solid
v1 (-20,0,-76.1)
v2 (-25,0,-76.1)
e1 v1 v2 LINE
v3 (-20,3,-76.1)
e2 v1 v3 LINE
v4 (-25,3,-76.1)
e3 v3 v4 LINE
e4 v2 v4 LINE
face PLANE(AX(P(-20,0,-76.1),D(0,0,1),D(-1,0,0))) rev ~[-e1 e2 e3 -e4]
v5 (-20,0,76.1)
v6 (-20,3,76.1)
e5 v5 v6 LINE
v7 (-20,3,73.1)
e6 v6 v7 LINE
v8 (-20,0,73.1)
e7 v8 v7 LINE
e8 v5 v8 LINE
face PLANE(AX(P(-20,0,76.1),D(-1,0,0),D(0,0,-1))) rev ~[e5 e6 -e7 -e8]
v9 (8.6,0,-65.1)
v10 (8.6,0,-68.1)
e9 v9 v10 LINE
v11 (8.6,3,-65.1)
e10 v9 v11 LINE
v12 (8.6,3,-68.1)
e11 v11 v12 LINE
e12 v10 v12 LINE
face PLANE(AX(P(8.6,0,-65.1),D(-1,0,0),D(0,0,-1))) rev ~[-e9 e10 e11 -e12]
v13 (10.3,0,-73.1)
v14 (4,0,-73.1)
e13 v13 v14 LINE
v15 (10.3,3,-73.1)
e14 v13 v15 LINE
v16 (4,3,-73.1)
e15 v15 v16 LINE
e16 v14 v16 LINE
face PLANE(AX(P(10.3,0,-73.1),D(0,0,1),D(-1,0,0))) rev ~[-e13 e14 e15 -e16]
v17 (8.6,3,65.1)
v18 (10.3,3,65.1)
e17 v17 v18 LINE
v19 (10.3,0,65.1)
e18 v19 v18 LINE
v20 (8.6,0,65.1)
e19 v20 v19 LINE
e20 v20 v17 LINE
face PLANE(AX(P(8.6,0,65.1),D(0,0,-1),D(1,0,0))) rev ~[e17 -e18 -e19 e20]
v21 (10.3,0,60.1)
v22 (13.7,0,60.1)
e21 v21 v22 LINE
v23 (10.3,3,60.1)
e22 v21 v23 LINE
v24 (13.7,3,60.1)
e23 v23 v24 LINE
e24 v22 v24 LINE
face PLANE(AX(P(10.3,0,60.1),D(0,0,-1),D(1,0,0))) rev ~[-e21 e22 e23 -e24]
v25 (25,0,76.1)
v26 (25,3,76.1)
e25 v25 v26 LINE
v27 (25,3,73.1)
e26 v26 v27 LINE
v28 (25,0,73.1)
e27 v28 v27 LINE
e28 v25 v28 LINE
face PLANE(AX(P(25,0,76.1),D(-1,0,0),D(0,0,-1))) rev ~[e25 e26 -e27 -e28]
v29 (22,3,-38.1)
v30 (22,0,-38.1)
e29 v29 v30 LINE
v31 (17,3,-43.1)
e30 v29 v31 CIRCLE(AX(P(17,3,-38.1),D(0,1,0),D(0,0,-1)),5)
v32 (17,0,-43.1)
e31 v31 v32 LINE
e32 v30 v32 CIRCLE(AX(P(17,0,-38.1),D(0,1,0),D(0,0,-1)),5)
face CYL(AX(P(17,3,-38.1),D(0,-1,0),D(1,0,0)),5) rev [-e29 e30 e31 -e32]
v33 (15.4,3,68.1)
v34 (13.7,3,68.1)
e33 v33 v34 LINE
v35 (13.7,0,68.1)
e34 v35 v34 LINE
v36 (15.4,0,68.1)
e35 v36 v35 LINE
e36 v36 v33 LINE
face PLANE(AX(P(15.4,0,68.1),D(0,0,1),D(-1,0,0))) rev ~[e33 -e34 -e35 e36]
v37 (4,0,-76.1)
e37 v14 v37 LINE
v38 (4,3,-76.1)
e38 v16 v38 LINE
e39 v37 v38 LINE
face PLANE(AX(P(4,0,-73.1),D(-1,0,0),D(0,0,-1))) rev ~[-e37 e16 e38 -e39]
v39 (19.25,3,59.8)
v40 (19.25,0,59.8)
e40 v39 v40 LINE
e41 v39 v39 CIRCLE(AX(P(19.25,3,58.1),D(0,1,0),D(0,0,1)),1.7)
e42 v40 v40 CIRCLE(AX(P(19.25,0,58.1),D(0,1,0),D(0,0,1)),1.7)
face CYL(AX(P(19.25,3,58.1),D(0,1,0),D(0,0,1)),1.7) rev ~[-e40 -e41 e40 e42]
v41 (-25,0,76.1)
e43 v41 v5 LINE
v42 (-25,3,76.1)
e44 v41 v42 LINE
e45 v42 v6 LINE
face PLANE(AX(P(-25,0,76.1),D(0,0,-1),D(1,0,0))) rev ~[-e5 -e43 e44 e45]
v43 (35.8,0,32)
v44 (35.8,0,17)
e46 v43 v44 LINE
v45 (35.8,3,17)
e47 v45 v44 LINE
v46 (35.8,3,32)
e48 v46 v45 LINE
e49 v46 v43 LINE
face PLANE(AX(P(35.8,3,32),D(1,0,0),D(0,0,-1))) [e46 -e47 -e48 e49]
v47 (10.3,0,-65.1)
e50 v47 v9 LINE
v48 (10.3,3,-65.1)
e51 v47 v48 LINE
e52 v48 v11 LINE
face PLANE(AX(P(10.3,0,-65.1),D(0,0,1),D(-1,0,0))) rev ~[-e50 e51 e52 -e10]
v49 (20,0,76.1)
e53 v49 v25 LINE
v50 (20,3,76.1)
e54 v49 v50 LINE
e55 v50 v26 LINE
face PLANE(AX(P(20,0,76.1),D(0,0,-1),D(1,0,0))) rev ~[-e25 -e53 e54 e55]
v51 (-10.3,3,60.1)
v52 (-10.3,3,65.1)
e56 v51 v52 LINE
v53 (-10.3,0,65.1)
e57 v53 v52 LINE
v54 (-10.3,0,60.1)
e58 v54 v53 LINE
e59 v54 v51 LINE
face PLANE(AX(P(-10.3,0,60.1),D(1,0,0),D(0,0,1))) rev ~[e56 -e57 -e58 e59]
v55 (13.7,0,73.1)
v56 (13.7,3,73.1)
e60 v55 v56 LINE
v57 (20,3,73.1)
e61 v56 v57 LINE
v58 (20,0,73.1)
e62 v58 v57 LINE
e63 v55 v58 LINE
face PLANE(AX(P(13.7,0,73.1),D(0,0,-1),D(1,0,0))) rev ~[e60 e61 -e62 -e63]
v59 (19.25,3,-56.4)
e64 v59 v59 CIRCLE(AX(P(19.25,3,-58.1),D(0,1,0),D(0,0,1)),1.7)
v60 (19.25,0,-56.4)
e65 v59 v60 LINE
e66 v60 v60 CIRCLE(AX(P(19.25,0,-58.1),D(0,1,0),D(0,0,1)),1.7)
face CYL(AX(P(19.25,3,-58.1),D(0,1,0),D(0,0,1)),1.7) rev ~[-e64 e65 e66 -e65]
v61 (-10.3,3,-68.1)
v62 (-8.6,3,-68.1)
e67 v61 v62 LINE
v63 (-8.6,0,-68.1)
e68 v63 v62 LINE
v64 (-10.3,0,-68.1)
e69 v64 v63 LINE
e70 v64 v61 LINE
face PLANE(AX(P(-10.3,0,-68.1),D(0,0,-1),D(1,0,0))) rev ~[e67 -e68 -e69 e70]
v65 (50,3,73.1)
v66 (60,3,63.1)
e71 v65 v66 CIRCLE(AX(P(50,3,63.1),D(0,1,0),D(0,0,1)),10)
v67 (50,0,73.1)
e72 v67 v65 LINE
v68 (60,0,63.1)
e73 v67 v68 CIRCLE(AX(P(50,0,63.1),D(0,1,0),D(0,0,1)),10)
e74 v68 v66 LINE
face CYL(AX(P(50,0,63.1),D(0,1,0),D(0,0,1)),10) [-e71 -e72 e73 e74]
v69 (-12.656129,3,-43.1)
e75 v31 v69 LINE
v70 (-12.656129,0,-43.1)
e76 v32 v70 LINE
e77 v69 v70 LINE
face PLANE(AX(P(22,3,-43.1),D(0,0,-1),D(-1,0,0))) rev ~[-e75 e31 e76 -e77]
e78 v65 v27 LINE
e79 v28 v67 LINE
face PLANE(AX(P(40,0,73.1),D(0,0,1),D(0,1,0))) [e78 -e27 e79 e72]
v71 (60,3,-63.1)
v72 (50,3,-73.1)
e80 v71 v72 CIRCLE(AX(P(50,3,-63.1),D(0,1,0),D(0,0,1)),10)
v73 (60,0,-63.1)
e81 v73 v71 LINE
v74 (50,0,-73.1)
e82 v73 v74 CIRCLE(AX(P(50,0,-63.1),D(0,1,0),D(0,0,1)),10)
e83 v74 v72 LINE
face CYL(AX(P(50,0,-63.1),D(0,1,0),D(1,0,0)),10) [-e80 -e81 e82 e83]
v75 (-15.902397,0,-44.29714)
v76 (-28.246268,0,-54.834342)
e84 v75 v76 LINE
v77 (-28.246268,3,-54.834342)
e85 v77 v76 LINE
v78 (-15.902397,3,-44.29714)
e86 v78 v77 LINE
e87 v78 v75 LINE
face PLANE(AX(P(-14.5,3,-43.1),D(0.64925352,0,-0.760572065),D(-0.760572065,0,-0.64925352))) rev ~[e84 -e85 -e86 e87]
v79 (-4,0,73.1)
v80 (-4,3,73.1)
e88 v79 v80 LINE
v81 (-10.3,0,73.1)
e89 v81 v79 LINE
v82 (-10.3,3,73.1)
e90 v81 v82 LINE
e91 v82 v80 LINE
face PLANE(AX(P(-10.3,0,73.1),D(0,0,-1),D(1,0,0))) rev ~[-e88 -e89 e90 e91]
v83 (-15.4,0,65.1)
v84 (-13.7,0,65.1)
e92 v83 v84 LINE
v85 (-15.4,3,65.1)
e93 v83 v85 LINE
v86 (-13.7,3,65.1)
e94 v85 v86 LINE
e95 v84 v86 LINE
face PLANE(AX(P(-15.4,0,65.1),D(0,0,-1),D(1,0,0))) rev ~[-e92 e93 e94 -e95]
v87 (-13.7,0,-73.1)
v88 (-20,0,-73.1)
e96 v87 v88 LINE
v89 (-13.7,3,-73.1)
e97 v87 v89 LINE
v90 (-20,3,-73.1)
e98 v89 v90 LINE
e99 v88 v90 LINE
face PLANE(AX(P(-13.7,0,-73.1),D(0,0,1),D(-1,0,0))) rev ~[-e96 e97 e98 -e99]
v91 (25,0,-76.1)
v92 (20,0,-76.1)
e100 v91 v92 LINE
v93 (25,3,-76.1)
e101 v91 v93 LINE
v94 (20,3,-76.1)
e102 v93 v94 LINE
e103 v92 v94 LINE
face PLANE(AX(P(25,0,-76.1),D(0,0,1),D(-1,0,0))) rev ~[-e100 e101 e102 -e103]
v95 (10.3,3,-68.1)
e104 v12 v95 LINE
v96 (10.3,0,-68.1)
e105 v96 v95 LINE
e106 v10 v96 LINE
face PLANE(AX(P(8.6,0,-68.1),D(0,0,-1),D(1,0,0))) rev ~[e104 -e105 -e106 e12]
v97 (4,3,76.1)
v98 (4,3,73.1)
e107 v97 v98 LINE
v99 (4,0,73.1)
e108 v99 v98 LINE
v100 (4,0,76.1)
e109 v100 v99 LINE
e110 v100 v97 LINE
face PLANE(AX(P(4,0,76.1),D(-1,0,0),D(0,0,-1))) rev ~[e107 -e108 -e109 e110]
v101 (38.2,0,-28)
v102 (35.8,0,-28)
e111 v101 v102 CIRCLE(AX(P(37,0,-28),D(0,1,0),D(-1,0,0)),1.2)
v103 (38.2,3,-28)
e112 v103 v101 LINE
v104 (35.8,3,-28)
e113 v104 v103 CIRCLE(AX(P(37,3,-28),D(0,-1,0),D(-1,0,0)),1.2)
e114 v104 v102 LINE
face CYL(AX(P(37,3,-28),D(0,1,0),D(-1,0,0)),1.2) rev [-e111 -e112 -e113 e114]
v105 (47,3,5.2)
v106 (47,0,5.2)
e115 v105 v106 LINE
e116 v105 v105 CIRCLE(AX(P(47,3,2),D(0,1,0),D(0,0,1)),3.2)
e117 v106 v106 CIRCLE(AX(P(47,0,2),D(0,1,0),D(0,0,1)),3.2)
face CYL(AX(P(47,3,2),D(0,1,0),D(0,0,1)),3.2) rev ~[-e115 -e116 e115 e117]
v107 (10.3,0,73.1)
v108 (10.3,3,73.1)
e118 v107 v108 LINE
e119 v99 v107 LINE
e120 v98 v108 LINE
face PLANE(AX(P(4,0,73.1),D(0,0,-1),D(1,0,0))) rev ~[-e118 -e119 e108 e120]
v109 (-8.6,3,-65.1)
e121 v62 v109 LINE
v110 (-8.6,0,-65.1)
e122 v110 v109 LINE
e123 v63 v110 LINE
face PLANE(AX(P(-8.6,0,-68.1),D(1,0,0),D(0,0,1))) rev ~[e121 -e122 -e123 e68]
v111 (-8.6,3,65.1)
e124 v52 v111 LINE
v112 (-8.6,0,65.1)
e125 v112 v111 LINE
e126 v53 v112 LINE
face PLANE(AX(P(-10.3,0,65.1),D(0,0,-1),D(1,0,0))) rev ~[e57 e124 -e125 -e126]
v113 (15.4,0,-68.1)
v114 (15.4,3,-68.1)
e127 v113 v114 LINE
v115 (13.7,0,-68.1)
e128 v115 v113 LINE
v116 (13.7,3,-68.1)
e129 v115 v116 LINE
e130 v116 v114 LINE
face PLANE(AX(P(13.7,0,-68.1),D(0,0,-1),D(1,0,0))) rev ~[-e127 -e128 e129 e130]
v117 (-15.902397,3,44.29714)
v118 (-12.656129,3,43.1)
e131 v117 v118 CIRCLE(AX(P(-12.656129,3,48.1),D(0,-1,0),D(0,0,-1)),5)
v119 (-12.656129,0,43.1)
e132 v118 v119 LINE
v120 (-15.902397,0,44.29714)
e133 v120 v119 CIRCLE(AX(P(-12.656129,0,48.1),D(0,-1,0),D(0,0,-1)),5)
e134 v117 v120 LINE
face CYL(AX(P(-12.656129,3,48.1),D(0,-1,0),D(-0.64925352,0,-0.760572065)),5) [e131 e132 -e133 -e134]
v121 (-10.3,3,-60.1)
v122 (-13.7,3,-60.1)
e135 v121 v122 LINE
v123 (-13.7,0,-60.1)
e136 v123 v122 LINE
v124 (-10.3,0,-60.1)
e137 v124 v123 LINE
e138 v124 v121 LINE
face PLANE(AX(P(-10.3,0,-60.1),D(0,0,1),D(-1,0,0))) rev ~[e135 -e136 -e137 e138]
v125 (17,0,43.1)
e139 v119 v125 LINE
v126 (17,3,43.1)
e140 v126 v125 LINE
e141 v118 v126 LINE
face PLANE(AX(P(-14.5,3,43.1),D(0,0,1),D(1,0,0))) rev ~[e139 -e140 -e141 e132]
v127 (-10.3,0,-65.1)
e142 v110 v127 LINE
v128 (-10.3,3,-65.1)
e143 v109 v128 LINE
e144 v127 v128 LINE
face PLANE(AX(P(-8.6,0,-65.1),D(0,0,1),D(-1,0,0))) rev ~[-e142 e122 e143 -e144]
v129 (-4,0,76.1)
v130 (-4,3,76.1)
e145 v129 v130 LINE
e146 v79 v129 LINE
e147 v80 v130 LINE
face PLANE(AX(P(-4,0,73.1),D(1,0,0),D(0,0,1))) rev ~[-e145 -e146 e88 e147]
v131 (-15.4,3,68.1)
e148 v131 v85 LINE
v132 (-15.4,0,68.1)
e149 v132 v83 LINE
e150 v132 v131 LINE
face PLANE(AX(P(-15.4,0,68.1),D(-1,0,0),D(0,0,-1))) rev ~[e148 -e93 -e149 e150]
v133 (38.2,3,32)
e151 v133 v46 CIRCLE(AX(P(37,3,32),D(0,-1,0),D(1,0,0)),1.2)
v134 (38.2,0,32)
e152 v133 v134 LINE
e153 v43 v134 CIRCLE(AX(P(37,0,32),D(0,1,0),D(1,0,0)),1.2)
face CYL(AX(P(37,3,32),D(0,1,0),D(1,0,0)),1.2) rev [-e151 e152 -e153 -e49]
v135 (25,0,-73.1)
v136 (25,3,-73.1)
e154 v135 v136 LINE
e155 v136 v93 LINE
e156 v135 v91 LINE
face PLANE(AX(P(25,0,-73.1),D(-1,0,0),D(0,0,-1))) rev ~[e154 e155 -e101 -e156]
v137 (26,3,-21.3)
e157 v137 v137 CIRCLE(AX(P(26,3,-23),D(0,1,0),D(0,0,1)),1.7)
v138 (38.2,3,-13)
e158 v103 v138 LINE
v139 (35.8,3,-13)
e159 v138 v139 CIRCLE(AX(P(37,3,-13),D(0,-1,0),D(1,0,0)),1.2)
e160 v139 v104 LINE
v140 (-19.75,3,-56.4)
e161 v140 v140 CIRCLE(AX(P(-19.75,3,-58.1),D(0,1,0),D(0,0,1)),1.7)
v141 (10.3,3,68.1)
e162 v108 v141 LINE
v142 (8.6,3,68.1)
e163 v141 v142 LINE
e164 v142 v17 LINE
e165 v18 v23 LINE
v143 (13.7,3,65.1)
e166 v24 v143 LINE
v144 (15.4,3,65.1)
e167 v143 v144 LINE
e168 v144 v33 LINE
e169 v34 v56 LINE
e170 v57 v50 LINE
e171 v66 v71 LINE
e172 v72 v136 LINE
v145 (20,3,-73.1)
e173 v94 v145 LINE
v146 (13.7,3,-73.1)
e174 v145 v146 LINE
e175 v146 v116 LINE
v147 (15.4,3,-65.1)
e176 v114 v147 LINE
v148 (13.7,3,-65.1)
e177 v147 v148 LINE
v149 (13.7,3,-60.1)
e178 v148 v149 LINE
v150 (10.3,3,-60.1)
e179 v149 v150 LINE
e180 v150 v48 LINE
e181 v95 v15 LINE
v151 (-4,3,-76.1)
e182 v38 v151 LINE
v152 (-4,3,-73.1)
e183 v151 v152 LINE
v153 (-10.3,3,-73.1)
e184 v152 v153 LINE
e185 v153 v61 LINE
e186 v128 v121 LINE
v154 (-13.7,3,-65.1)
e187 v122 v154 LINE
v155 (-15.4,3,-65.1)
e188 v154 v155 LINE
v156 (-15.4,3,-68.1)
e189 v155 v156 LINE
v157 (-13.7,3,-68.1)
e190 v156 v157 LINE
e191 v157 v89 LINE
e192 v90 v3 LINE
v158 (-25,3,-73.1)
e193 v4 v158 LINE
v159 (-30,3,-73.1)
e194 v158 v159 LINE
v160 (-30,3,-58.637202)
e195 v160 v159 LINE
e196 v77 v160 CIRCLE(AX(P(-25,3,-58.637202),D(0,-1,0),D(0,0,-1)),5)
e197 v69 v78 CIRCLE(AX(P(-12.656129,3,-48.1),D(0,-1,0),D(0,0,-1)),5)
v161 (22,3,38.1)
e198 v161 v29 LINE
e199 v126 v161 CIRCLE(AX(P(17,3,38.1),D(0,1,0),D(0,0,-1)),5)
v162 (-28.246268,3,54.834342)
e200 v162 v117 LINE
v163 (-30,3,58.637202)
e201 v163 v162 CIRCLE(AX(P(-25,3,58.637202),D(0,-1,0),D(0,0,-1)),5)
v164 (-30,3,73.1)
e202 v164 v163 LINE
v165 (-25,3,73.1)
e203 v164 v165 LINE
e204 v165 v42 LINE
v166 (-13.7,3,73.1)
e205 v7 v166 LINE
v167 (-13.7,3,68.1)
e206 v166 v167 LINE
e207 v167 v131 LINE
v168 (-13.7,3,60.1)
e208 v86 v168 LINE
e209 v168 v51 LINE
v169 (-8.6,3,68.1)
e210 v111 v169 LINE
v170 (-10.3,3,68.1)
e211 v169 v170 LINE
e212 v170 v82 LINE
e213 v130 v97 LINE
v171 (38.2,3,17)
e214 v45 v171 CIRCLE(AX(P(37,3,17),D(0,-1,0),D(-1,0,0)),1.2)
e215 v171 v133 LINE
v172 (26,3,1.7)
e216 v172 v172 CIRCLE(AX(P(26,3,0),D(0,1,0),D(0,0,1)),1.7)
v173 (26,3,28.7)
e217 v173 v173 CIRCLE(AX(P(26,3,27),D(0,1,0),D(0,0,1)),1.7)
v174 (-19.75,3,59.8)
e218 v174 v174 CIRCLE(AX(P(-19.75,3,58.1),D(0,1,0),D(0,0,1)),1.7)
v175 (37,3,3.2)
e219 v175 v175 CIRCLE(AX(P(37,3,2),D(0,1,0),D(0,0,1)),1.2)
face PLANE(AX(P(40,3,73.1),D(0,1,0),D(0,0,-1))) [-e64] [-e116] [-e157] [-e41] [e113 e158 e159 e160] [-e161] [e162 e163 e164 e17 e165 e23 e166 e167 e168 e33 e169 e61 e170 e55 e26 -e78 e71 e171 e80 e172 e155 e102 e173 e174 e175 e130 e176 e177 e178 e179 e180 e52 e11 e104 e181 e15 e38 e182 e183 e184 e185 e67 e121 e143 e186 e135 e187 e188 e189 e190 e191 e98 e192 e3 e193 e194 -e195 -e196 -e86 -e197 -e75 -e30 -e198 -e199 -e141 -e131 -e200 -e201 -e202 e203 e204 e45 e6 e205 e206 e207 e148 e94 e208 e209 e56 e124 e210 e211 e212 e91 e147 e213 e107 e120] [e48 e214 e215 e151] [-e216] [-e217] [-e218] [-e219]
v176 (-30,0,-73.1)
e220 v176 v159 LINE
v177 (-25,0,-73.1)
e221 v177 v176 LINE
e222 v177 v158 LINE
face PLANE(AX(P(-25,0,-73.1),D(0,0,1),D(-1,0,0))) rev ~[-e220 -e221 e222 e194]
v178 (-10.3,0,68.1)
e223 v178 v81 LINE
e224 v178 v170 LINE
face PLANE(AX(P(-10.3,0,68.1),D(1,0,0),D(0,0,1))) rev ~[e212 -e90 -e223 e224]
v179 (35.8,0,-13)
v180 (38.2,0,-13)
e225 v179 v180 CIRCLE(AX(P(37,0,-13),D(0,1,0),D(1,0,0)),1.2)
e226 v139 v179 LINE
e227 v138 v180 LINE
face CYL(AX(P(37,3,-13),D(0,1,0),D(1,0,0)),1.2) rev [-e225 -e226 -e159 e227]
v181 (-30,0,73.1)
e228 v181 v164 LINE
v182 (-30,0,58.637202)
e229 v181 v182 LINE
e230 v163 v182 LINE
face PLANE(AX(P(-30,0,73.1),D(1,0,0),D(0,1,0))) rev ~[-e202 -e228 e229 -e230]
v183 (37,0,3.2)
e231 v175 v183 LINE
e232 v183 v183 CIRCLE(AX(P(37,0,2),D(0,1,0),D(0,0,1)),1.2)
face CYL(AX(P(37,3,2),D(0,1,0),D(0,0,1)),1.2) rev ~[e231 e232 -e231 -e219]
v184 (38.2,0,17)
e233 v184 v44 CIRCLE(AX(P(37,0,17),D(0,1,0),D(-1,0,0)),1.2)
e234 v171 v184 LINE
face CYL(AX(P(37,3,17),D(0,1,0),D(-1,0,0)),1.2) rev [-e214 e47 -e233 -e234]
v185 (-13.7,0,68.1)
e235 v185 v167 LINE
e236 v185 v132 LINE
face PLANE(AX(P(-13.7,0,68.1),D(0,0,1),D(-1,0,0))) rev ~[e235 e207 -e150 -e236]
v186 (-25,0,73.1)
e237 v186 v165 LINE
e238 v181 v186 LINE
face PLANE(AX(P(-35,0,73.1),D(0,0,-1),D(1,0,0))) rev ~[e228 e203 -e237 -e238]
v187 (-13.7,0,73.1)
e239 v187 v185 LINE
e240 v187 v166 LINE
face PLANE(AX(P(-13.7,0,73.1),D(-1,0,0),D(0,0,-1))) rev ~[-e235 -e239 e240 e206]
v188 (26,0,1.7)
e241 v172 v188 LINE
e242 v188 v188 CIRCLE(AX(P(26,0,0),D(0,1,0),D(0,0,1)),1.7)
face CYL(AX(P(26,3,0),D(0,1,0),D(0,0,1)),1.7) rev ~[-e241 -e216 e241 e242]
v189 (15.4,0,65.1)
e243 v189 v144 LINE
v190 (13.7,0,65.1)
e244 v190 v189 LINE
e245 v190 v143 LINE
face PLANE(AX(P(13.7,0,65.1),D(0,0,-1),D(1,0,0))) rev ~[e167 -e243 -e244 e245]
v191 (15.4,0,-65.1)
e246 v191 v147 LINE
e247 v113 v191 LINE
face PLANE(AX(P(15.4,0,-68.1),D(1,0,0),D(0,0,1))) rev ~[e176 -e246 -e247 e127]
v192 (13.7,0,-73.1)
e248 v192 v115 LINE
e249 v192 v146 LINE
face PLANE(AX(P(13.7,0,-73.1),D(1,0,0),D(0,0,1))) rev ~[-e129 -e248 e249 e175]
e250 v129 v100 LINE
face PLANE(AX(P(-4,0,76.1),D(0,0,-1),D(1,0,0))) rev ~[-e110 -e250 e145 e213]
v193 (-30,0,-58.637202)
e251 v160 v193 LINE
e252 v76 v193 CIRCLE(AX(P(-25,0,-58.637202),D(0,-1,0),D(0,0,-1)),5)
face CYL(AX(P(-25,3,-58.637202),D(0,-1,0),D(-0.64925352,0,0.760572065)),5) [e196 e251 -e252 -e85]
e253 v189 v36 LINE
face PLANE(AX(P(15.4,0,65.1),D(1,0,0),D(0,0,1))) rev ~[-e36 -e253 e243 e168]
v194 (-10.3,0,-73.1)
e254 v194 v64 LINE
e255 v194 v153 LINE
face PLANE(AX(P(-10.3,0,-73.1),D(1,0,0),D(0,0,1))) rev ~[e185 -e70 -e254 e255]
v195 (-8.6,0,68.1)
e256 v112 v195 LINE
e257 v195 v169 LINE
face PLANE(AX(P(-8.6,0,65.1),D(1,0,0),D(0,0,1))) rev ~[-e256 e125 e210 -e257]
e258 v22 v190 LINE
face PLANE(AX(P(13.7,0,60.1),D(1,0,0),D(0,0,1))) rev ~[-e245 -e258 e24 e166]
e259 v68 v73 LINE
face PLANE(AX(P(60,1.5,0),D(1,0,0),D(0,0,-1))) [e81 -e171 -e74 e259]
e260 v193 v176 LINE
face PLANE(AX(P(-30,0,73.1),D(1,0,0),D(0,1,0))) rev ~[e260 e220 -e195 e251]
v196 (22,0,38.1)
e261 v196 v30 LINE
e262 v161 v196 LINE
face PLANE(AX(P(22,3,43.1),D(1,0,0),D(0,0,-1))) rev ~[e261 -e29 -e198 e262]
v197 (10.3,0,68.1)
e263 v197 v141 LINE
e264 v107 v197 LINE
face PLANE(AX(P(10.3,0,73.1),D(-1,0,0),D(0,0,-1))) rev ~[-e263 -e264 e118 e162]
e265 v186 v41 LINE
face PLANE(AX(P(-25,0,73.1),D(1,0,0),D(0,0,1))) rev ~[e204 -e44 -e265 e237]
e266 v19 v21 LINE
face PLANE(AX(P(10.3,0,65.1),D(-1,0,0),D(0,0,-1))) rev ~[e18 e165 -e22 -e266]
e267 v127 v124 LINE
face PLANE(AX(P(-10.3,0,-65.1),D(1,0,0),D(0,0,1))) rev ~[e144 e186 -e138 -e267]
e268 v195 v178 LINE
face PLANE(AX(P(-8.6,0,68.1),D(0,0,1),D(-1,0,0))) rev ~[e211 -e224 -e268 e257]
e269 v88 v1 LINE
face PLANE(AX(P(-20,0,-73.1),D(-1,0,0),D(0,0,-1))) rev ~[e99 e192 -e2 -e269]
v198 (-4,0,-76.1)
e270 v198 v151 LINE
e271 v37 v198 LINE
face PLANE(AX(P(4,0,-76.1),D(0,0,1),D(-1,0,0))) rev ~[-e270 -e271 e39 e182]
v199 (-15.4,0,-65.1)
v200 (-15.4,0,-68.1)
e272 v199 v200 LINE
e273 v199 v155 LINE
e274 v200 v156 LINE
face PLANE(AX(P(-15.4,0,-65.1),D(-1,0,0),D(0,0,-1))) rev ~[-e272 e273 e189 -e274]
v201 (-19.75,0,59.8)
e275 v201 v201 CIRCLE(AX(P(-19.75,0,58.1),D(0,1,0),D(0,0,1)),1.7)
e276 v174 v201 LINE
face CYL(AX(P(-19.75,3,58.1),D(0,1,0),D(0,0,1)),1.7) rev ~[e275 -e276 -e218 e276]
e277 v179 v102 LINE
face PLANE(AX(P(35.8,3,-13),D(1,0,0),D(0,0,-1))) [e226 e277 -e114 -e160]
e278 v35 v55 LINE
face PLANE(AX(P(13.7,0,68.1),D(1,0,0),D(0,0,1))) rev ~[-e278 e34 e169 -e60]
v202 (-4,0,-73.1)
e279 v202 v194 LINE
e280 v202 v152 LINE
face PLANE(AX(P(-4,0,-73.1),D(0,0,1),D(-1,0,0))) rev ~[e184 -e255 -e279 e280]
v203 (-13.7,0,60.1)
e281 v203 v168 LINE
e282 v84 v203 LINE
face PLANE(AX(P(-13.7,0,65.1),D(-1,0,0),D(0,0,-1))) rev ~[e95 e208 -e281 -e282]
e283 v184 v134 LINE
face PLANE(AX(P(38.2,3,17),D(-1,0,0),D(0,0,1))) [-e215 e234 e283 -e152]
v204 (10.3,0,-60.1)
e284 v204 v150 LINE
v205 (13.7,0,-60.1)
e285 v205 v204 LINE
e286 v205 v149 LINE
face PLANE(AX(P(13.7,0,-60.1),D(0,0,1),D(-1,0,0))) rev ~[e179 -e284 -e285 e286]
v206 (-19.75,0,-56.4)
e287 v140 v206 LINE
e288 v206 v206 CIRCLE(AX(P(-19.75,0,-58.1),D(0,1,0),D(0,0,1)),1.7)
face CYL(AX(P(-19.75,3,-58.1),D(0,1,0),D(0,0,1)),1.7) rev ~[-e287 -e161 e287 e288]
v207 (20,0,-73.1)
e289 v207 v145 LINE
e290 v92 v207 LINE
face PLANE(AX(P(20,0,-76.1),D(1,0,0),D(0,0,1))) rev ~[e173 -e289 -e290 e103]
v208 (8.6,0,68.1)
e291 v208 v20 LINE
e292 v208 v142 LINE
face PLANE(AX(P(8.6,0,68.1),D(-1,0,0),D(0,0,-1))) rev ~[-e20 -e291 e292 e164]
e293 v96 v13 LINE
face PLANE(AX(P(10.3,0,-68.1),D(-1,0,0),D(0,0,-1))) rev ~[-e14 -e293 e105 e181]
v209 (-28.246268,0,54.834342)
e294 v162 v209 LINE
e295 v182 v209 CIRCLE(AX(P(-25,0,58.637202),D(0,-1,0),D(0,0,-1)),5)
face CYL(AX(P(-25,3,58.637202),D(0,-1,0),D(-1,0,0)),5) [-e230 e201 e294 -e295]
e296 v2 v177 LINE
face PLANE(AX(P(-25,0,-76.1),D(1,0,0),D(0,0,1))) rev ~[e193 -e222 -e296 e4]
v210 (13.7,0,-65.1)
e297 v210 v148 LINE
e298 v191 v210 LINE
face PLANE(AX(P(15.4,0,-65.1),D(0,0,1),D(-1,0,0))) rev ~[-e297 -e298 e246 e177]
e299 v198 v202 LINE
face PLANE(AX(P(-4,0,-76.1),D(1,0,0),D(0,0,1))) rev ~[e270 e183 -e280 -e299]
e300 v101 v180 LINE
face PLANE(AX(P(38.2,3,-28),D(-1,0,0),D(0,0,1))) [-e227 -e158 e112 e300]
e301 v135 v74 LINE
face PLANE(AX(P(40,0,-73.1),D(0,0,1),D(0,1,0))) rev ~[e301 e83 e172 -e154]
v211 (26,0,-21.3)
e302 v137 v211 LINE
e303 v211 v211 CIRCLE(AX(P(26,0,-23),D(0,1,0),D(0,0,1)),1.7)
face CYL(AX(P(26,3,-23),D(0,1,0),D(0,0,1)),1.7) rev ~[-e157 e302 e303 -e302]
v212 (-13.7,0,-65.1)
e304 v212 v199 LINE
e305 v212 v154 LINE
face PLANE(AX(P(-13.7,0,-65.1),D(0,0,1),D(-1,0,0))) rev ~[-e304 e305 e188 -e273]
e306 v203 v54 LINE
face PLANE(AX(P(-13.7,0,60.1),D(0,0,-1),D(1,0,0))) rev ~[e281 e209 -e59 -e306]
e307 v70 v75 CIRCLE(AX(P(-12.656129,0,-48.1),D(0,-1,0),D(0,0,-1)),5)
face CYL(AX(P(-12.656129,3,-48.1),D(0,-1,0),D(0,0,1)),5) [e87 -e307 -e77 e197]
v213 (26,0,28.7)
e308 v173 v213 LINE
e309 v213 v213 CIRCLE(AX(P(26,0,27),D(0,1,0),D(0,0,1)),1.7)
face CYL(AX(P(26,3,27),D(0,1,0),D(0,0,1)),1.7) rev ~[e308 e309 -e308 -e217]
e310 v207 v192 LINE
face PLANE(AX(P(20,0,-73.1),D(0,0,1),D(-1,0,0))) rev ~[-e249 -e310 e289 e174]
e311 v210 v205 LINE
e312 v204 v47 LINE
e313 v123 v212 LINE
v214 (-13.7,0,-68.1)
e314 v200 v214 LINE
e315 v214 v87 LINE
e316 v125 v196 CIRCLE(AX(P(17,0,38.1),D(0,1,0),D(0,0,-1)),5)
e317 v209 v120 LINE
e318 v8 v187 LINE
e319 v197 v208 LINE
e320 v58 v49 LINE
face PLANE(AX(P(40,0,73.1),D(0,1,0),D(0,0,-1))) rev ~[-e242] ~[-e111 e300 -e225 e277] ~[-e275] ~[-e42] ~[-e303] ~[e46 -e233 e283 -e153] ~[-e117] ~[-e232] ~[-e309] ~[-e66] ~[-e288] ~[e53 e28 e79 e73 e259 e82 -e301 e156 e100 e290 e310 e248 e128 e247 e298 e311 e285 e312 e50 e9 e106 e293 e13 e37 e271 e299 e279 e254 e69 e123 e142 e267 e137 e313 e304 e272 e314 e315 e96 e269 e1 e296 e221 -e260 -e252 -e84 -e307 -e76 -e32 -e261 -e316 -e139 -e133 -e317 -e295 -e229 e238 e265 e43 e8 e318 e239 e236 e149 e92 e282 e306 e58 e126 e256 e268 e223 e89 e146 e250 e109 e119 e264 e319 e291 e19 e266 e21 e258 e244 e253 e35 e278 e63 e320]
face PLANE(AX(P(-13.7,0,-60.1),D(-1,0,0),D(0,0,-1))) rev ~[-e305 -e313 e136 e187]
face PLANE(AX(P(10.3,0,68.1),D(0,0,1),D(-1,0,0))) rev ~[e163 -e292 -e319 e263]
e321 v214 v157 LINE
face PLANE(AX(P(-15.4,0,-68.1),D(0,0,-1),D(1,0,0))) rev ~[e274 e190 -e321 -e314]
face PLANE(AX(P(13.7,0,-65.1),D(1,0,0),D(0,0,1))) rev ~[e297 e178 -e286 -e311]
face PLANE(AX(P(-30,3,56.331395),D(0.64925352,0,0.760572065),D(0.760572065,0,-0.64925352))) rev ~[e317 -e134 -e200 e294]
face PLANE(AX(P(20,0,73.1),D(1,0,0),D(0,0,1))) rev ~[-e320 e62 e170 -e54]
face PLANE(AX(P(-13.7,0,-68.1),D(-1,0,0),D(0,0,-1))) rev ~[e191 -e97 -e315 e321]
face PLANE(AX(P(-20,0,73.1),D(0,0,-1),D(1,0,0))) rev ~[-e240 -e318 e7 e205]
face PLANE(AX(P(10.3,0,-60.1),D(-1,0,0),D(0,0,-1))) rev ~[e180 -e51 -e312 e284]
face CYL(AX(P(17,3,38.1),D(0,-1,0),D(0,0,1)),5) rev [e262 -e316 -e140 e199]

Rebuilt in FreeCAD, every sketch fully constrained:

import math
import FreeCAD as App
import Part
import Sketcher
Q = App.Units.Quantity


def edges_at(feature, points):
    """Names of the edges that pass closest to the given points."""
    edges = feature.Shape.Edges
    near = lambda p: min(range(len(edges)), key=lambda i: edges[i].distToShape(Part.Vertex(*p))[0])
    return sorted({f"Edge{near(p) + 1}" for p in points})


def add_polygon(sketch, points):
    """Adds a closed chain of lines whose ends are joined by coincident constraints."""
    first, n = sketch.GeometryCount, len(points)
    for a, b in zip(points, points[1:] + points[:1]):
        sketch.addGeometry(Part.LineSegment(App.Vector(*a, 0), App.Vector(*b, 0)), False)
    for i in range(n):
        sketch.addConstraint(Sketcher.Constraint("Coincident", first + i, 2, first + (i + 1) % n, 1))

doc = App.newDocument("Part")
body = doc.addObject("PartDesign::Body", "Body")

# Sketch on XZ plane
sketch1 = body.newObject("Sketcher::SketchObject", "Sketch")
sketch1.AttachmentSupport = (doc.getObject("XZ_Plane"), [""])
sketch1.MapMode = "FlatFace"
add_polygon(sketch1, [(-25, 73.1), (-25, 76.1), (-20, 76.1), (-20, 73.1), (-13.7, 73.1), (-13.7, 68.1), (-15.4, 68.1), (-15.4, 65.1), (-13.7, 65.1), (-13.7, 60.1), (-10.3, 60.1), (-10.3, 65.1), (-8.6, 65.1), (-8.6, 68.1), (-10.3, 68.1), (-10.3, 73.1), (-4, 73.1), (-4, 76.1), (4, 76.1), (4, 73.1), (10.3, 73.1), (10.3, 68.1), (8.6, 68.1), (8.6, 65.1), (10.3, 65.1), (10.3, 60.1), (13.7, 60.1), (13.7, 65.1), (15.4, 65.1), (15.4, 68.1), (13.7, 68.1), (13.7, 73.1), (20, 73.1), (20, 76.1), (25, 76.1), (25, 73.1), (35, 73.1), (35, -73.1), (25, -73.1), (25, -76.1), (20, -76.1), (20, -73.1), (13.7, -73.1), (13.7, -68.1), (15.4, -68.1), (15.4, -65.1), (13.7, -65.1), (13.7, -60.1), (10.3, -60.1), (10.3, -65.1), (8.6, -65.1), (8.6, -68.1), (10.3, -68.1), (10.3, -73.1), (4, -73.1), (4, -76.1), (-4, -76.1), (-4, -73.1), (-10.3, -73.1), (-10.3, -68.1), (-8.6, -68.1), (-8.6, -65.1), (-10.3, -65.1), (-10.3, -60.1), (-13.7, -60.1), (-13.7, -65.1), (-15.4, -65.1), (-15.4, -68.1), (-13.7, -68.1), (-13.7, -73.1), (-20, -73.1), (-20, -76.1), (-25, -76.1), (-25, -73.1), (-35, -73.1), (-35, 73.1)])  # lines 0-75
sketch1.addConstraint(Sketcher.Constraint("Vertical", 0))
sketch1.addConstraint(Sketcher.Constraint("Horizontal", 1))
sketch1.addConstraint(Sketcher.Constraint("Vertical", 2))
sketch1.addConstraint(Sketcher.Constraint("Horizontal", 3))
sketch1.addConstraint(Sketcher.Constraint("Vertical", 4))
sketch1.addConstraint(Sketcher.Constraint("Horizontal", 5))
sketch1.addConstraint(Sketcher.Constraint("Vertical", 6))
sketch1.addConstraint(Sketcher.Constraint("Horizontal", 7))
sketch1.addConstraint(Sketcher.Constraint("Vertical", 8))
sketch1.addConstraint(Sketcher.Constraint("Horizontal", 9))
sketch1.addConstraint(Sketcher.Constraint("Vertical", 10))
sketch1.addConstraint(Sketcher.Constraint("Horizontal", 11))
sketch1.addConstraint(Sketcher.Constraint("Vertical", 12))
sketch1.addConstraint(Sketcher.Constraint("Horizontal", 13))
sketch1.addConstraint(Sketcher.Constraint("Vertical", 14))
sketch1.addConstraint(Sketcher.Constraint("Horizontal", 15))
sketch1.addConstraint(Sketcher.Constraint("Vertical", 16))
sketch1.addConstraint(Sketcher.Constraint("Horizontal", 17))
sketch1.addConstraint(Sketcher.Constraint("Vertical", 18))
sketch1.addConstraint(Sketcher.Constraint("Horizontal", 19))
sketch1.addConstraint(Sketcher.Constraint("Vertical", 20))
sketch1.addConstraint(Sketcher.Constraint("Horizontal", 21))
sketch1.addConstraint(Sketcher.Constraint("Vertical", 22))
sketch1.addConstraint(Sketcher.Constraint("Horizontal", 23))
sketch1.addConstraint(Sketcher.Constraint("Vertical", 24))
sketch1.addConstraint(Sketcher.Constraint("Horizontal", 25))
sketch1.addConstraint(Sketcher.Constraint("Vertical", 26))
sketch1.addConstraint(Sketcher.Constraint("Horizontal", 27))
sketch1.addConstraint(Sketcher.Constraint("Vertical", 28))
sketch1.addConstraint(Sketcher.Constraint("Horizontal", 29))
sketch1.addConstraint(Sketcher.Constraint("Vertical", 30))
sketch1.addConstraint(Sketcher.Constraint("Horizontal", 31))
sketch1.addConstraint(Sketcher.Constraint("Vertical", 32))
sketch1.addConstraint(Sketcher.Constraint("Horizontal", 33))
sketch1.addConstraint(Sketcher.Constraint("Vertical", 34))
sketch1.addConstraint(Sketcher.Constraint("Horizontal", 35))
sketch1.addConstraint(Sketcher.Constraint("Vertical", 36))
sketch1.addConstraint(Sketcher.Constraint("Horizontal", 37))
sketch1.addConstraint(Sketcher.Constraint("Vertical", 38))
sketch1.addConstraint(Sketcher.Constraint("Horizontal", 39))
sketch1.addConstraint(Sketcher.Constraint("Vertical", 40))
sketch1.addConstraint(Sketcher.Constraint("Horizontal", 41))
sketch1.addConstraint(Sketcher.Constraint("Vertical", 42))
sketch1.addConstraint(Sketcher.Constraint("Horizontal", 43))
sketch1.addConstraint(Sketcher.Constraint("Vertical", 44))
sketch1.addConstraint(Sketcher.Constraint("Horizontal", 45))
sketch1.addConstraint(Sketcher.Constraint("Vertical", 46))
sketch1.addConstraint(Sketcher.Constraint("Horizontal", 47))
sketch1.addConstraint(Sketcher.Constraint("Vertical", 48))
sketch1.addConstraint(Sketcher.Constraint("Horizontal", 49))
sketch1.addConstraint(Sketcher.Constraint("Vertical", 50))
sketch1.addConstraint(Sketcher.Constraint("Horizontal", 51))
sketch1.addConstraint(Sketcher.Constraint("Vertical", 52))
sketch1.addConstraint(Sketcher.Constraint("Horizontal", 53))
sketch1.addConstraint(Sketcher.Constraint("Vertical", 54))
sketch1.addConstraint(Sketcher.Constraint("Horizontal", 55))
sketch1.addConstraint(Sketcher.Constraint("Vertical", 56))
sketch1.addConstraint(Sketcher.Constraint("Horizontal", 57))
sketch1.addConstraint(Sketcher.Constraint("Vertical", 58))
sketch1.addConstraint(Sketcher.Constraint("Horizontal", 59))
sketch1.addConstraint(Sketcher.Constraint("Vertical", 60))
sketch1.addConstraint(Sketcher.Constraint("Horizontal", 61))
sketch1.addConstraint(Sketcher.Constraint("Vertical", 62))
sketch1.addConstraint(Sketcher.Constraint("Horizontal", 63))
sketch1.addConstraint(Sketcher.Constraint("Vertical", 64))
sketch1.addConstraint(Sketcher.Constraint("Horizontal", 65))
sketch1.addConstraint(Sketcher.Constraint("Vertical", 66))
sketch1.addConstraint(Sketcher.Constraint("Horizontal", 67))
sketch1.addConstraint(Sketcher.Constraint("Vertical", 68))
sketch1.addConstraint(Sketcher.Constraint("Horizontal", 69))
sketch1.addConstraint(Sketcher.Constraint("Vertical", 70))
sketch1.addConstraint(Sketcher.Constraint("Horizontal", 71))
sketch1.addConstraint(Sketcher.Constraint("Vertical", 72))
sketch1.addConstraint(Sketcher.Constraint("Horizontal", 73))
sketch1.addConstraint(Sketcher.Constraint("Vertical", 74))
sketch1.addConstraint(Sketcher.Constraint("Horizontal", 75))
sketch1.addConstraint(Sketcher.Constraint("Symmetric", 0, 2, 38, 2, -1, 1))
sketch1.addConstraint(Sketcher.Constraint("Symmetric", 2, 2, 40, 2, -1, 1))
sketch1.addConstraint(Sketcher.Constraint("Symmetric", 4, 2, 42, 2, -1, 1))
sketch1.addConstraint(Sketcher.Constraint("Symmetric", 6, 2, 44, 2, -1, 1))
sketch1.addConstraint(Sketcher.Constraint("Symmetric", 8, 2, 46, 2, -1, 1))
sketch1.addConstraint(Sketcher.Constraint("Symmetric", 10, 2, 48, 2, -1, 1))
sketch1.addConstraint(Sketcher.Constraint("Symmetric", 12, 2, 50, 2, -1, 1))
sketch1.addConstraint(Sketcher.Constraint("Symmetric", 14, 2, 52, 2, -1, 1))
sketch1.addConstraint(Sketcher.Constraint("Symmetric", 16, 2, 54, 2, -1, 1))
sketch1.addConstraint(Sketcher.Constraint("Symmetric", 18, 2, 56, 2, -1, 1))
sketch1.addConstraint(Sketcher.Constraint("Symmetric", 20, 2, 58, 2, -1, 1))
sketch1.addConstraint(Sketcher.Constraint("Symmetric", 22, 2, 60, 2, -1, 1))
sketch1.addConstraint(Sketcher.Constraint("Symmetric", 24, 2, 62, 2, -1, 1))
sketch1.addConstraint(Sketcher.Constraint("Symmetric", 26, 2, 64, 2, -1, 1))
sketch1.addConstraint(Sketcher.Constraint("Symmetric", 28, 2, 66, 2, -1, 1))
sketch1.addConstraint(Sketcher.Constraint("Symmetric", 30, 2, 68, 2, -1, 1))
sketch1.addConstraint(Sketcher.Constraint("Symmetric", 32, 2, 70, 2, -1, 1))
sketch1.addConstraint(Sketcher.Constraint("Symmetric", 34, 2, 72, 2, -1, 1))
sketch1.addConstraint(Sketcher.Constraint("Symmetric", 36, 2, 74, 2, -1, 1))
sketch1.addConstraint(Sketcher.Constraint("Symmetric", 15, 2, 18, 2, -2))
sketch1.addConstraint(Sketcher.Constraint("Symmetric", 13, 2, 20, 2, -2))
sketch1.addConstraint(Sketcher.Constraint("Symmetric", 11, 2, 22, 2, -2))
sketch1.addConstraint(Sketcher.Constraint("Symmetric", 9, 2, 24, 2, -2))
sketch1.addConstraint(Sketcher.Constraint("Symmetric", 7, 2, 26, 2, -2))
sketch1.addConstraint(Sketcher.Constraint("Symmetric", 5, 2, 28, 2, -2))
sketch1.addConstraint(Sketcher.Constraint("Symmetric", 3, 2, 30, 2, -2))
sketch1.addConstraint(Sketcher.Constraint("Symmetric", 1, 2, 32, 2, -2))
sketch1.addConstraint(Sketcher.Constraint("Symmetric", 37, 2, 72, 2, -2))
sketch1.addConstraint(Sketcher.Constraint("Horizontal", 7, 2, 10, 2))
sketch1.addConstraint(Sketcher.Constraint("Horizontal", 5, 2, 12, 2))
sketch1.addConstraint(Sketcher.Constraint("Horizontal", 3, 2, 14, 2))
sketch1.addConstraint(Sketcher.Constraint("Horizontal", 1, 2, 16, 2))
sketch1.addConstraint(Sketcher.Constraint("Horizontal", 31, 2, 34, 2))
sketch1.addConstraint(Sketcher.Constraint("Vertical", 4, 2, 7, 2))
sketch1.addConstraint(Sketcher.Constraint("Vertical", 10, 2, 13, 2))
sketch1.addConstraint(Sketcher.Constraint("Equal", 7, 11))
sketch1.addConstraint(Sketcher.Constraint("Equal", 3, 15))
sketch1.addConstraint(Sketcher.Constraint("Equal", 71, 4))
sketch1.addConstraint(Sketcher.Constraint("Equal", 2, 6))
sketch1.addConstraint(Sketcher.Constraint("Equal", 4, 8))
sketch1.addConstraint(Sketcher.Constraint("DistanceX", 1, 1, 1, 2, Q("5 mm")))
sketch1.addConstraint(Sketcher.Constraint("DistanceX", 17, 1, 17, 2, Q("8 mm")))
sketch1.addConstraint(Sketcher.Constraint("DistanceX", 35, 1, 35, 2, Q("10 mm")))
sketch1.addConstraint(Sketcher.Constraint("DistanceY", 0, 1, 0, 2, Q("3 mm")))
sketch1.addConstraint(Sketcher.Constraint("DistanceX", 3, 1, 3, 2, Q("6.3 mm")))
sketch1.addConstraint(Sketcher.Constraint("DistanceX", 5, 2, 5, 1, Q("1.7 mm")))
sketch1.addConstraint(Sketcher.Constraint("DistanceX", 9, 1, 9, 2, Q("3.4 mm")))
sketch1.addConstraint(Sketcher.Constraint("DistanceY", 36, 2, 36, 1, Q("146.2 mm")))
pad1 = body.newObject("PartDesign::Pad", "Pad")
pad1.Profile = sketch1
pad1.Length = 3
pad1.Reversed = True

# Sketch on XY plane
sketch2 = body.newObject("Sketcher::SketchObject", "Sketch001")
sketch2.AttachmentSupport = (doc.getObject("XY_Plane"), [""])
sketch2.MapMode = "FlatFace"
sketch2.AttachmentOffset = App.Placement(App.Vector(0, 0, 73.1), App.Rotation())
add_polygon(sketch2, [(-35, 3), (-35, 0), (-30, 0), (-30, 3)])  # lines 0-3
sketch2.addConstraint(Sketcher.Constraint("Vertical", 0))
sketch2.addConstraint(Sketcher.Constraint("Horizontal", 1))
sketch2.addConstraint(Sketcher.Constraint("Vertical", 2))
sketch2.addConstraint(Sketcher.Constraint("Horizontal", 3))
sketch2.addConstraint(Sketcher.Constraint("PointOnObject", 0, 2, -1))
sketch2.addConstraint(Sketcher.Constraint("DistanceX", 1, 1, 1, 2, Q("5 mm")))
sketch2.addConstraint(Sketcher.Constraint("DistanceY", 0, 2, 0, 1, Q("3 mm")))
sketch2.addConstraint(Sketcher.Constraint("DistanceX", 0, 2, -1, 1, Q("35 mm")))
pocket1 = body.newObject("PartDesign::Pocket", "Pocket")
pocket1.Profile = sketch2
pocket1.Length = 176

# Sketch on YZ plane
sketch3 = body.newObject("Sketcher::SketchObject", "Sketch002")
sketch3.AttachmentSupport = (doc.getObject("YZ_Plane"), [""])
sketch3.MapMode = "FlatFace"
sketch3.AttachmentOffset = App.Placement(App.Vector(0, 0, 35), App.Rotation())
add_polygon(sketch3, [(3, 73.1), (0, 73.1), (0, -73.1), (3, -73.1)])  # lines 0-3
sketch3.addConstraint(Sketcher.Constraint("Horizontal", 0))
sketch3.addConstraint(Sketcher.Constraint("Vertical", 1))
sketch3.addConstraint(Sketcher.Constraint("Horizontal", 2))
sketch3.addConstraint(Sketcher.Constraint("Vertical", 3))
sketch3.addConstraint(Sketcher.Constraint("Symmetric", 0, 2, 1, 2, -1, 1))
sketch3.addConstraint(Sketcher.Constraint("DistanceX", 0, 2, 0, 1, Q("3 mm")))
sketch3.addConstraint(Sketcher.Constraint("DistanceY", 1, 2, 1, 1, Q("146.2 mm")))
pad2 = body.newObject("PartDesign::Pad", "Pad001")
pad2.Profile = sketch3
pad2.Length = 5

# Sketch on XZ plane
sketch4 = body.newObject("Sketcher::SketchObject", "Sketch003")
sketch4.AttachmentSupport = (doc.getObject("XZ_Plane"), [""])
sketch4.MapMode = "FlatFace"
sketch4.AttachmentOffset = App.Placement(App.Vector(0, 0, -3), App.Rotation())
sketch4.addGeometry(Part.Circle(App.Vector(-19.8, 58.1, 0), App.Vector(0, 0, 1), 1.7), False)
sketch4.addGeometry(Part.Circle(App.Vector(19.2, 58.1, 0), App.Vector(0, 0, 1), 1.7), False)
sketch4.addGeometry(Part.Circle(App.Vector(19.2, -58.1, 0), App.Vector(0, 0, 1), 1.7), False)
sketch4.addGeometry(Part.Circle(App.Vector(-19.8, -58.1, 0), App.Vector(0, 0, 1), 1.7), False)
sketch4.addConstraint(Sketcher.Constraint("Equal", 0, 1))
sketch4.addConstraint(Sketcher.Constraint("Equal", 1, 2))
sketch4.addConstraint(Sketcher.Constraint("Equal", 2, 3))
sketch4.addConstraint(Sketcher.Constraint("Symmetric", 1, 3, 2, 3, -1))
sketch4.addConstraint(Sketcher.Constraint("Symmetric", 0, 3, 3, 3, -1))
sketch4.addConstraint(Sketcher.Constraint("Horizontal", 0, 3, 1, 3))
sketch4.addConstraint(Sketcher.Constraint("Diameter", 0, Q("3.4 mm")))
sketch4.addConstraint(Sketcher.Constraint("DistanceX", 0, 3, 1, 3, Q("39 mm")))
sketch4.addConstraint(Sketcher.Constraint("DistanceY", -1, 1, 0, 3, Q("58.1 mm")))
sketch4.addConstraint(Sketcher.Constraint("DistanceX", 0, 3, -1, 1, Q("19.75 mm")))
pocket2 = body.newObject("PartDesign::Pocket", "Pocket001")
pocket2.Profile = sketch4
pocket2.Length = 5
pocket2.Reversed = True

# Sketch on XZ plane
sketch5 = body.newObject("Sketcher::SketchObject", "Sketch004")
sketch5.AttachmentSupport = (doc.getObject("XZ_Plane"), [""])
sketch5.MapMode = "FlatFace"
sketch5.AttachmentOffset = App.Placement(App.Vector(0, 0, -3), App.Rotation())
add_polygon(sketch5, [(-30, 56), (-14, 43), (22, 43), (22, -43), (-14, -43), (-30, -56)])  # lines 0-5
sketch5.addConstraint(Sketcher.Constraint("Horizontal", 1))
sketch5.addConstraint(Sketcher.Constraint("Vertical", 2))
sketch5.addConstraint(Sketcher.Constraint("Horizontal", 3))
sketch5.addConstraint(Sketcher.Constraint("Vertical", 5))
sketch5.addConstraint(Sketcher.Constraint("Symmetric", 0, 2, 3, 2, -1))
sketch5.addConstraint(Sketcher.Constraint("Equal", 0, 4))
sketch5.addConstraint(Sketcher.Constraint("DistanceX", 1, 1, 1, 2, Q("36.5 mm")))
sketch5.addConstraint(Sketcher.Constraint("DistanceY", 2, 2, 2, 1, Q("86.2 mm")))
sketch5.addConstraint(Sketcher.Constraint("DistanceX", -1, 1, 1, 2, Q("22 mm")))
sketch5.addConstraint(Sketcher.Constraint("DistanceX", 4, 2, -1, 1, Q("30 mm")))
sketch5.addConstraint(Sketcher.Constraint("DistanceY", 5, 1, 5, 2, Q("112.66279 mm")))
pocket3 = body.newObject("PartDesign::Pocket", "Pocket002")
pocket3.Profile = sketch5
pocket3.Length = 10
pocket3.Reversed = True
doc.recompute()

fillet = body.newObject("PartDesign::Fillet", "Fillet")
fillet.Base = (pocket3, edges_at(pocket3, [
    (-30, 1.5, 56.331),
    (-30, 1.5, -56.331),
    (-14.5, 1.5, -43.1),
    (22, 1.5, -43.1),
    (22, 1.5, 43.1),
    (-14.5, 1.5, 43.1),
]))
fillet.Radius = 5

# Sketch on YZ plane
sketch6 = body.newObject("Sketcher::SketchObject", "Sketch005")
sketch6.AttachmentSupport = (doc.getObject("YZ_Plane"), [""])
sketch6.MapMode = "FlatFace"
sketch6.AttachmentOffset = App.Placement(App.Vector(0, 0, 40), App.Rotation())
add_polygon(sketch6, [(3, 73.1), (0, 73.1), (0, -73.1), (3, -73.1)])  # lines 0-3
sketch6.addConstraint(Sketcher.Constraint("Horizontal", 0))
sketch6.addConstraint(Sketcher.Constraint("Vertical", 1))
sketch6.addConstraint(Sketcher.Constraint("Horizontal", 2))
sketch6.addConstraint(Sketcher.Constraint("Vertical", 3))
sketch6.addConstraint(Sketcher.Constraint("Symmetric", 0, 2, 1, 2, -1, 1))
sketch6.addConstraint(Sketcher.Constraint("DistanceX", 0, 2, 0, 1, Q("3 mm")))
sketch6.addConstraint(Sketcher.Constraint("DistanceY", 1, 2, 1, 1, Q("146.2 mm")))
pad3 = body.newObject("PartDesign::Pad", "Pad002")
pad3.Profile = sketch6
pad3.Length = 20

# Sketch on XZ plane
sketch7 = body.newObject("Sketcher::SketchObject", "Sketch006")
sketch7.AttachmentSupport = (doc.getObject("XZ_Plane"), [""])
sketch7.MapMode = "FlatFace"
sketch7.AttachmentOffset = App.Placement(App.Vector(0, 0, -3), App.Rotation())
sketch7.addGeometry(Part.Circle(App.Vector(47, 2, 0), App.Vector(0, 0, 1), 3.2), False)
sketch7.addConstraint(Sketcher.Constraint("Diameter", 0, Q("6.4 mm")))
sketch7.addConstraint(Sketcher.Constraint("DistanceX", -1, 1, 0, 3, Q("47 mm")))
sketch7.addConstraint(Sketcher.Constraint("DistanceY", -1, 1, 0, 3, Q("2 mm")))
pocket4 = body.newObject("PartDesign::Pocket", "Pocket003")
pocket4.Profile = sketch7
pocket4.Length = 20
pocket4.Reversed = True

# Sketch on XZ plane
sketch8 = body.newObject("Sketcher::SketchObject", "Sketch007")
sketch8.AttachmentSupport = (doc.getObject("XZ_Plane"), [""])
sketch8.MapMode = "FlatFace"
sketch8.AttachmentOffset = App.Placement(App.Vector(0, 0, -3), App.Rotation())
sketch8.addGeometry(Part.Circle(App.Vector(37, 2, 0), App.Vector(0, 0, 1), 1.2), False)
sketch8.addGeometry(Part.LineSegment(App.Vector(35.8, -28, 0), App.Vector(35.8, -13, 0)), False)
sketch8.addGeometry(Part.ArcOfCircle(Part.Circle(App.Vector(37, -13, 0), App.Vector(0, 0, 1), 1.2), math.radians(0), math.radians(180)), False)
sketch8.addGeometry(Part.LineSegment(App.Vector(38.2, -13, 0), App.Vector(38.2, -28, 0)), False)
sketch8.addGeometry(Part.ArcOfCircle(Part.Circle(App.Vector(37, -28, 0), App.Vector(0, 0, 1), 1.2), math.radians(180), math.radians(360)), False)
sketch8.addGeometry(Part.LineSegment(App.Vector(38.2, 32, 0), App.Vector(38.2, 17, 0)), False)
sketch8.addGeometry(Part.ArcOfCircle(Part.Circle(App.Vector(37, 17, 0), App.Vector(0, 0, 1), 1.2), math.radians(180), math.radians(360)), False)
sketch8.addGeometry(Part.LineSegment(App.Vector(35.8, 17, 0), App.Vector(35.8, 32, 0)), False)
sketch8.addGeometry(Part.ArcOfCircle(Part.Circle(App.Vector(37, 32, 0), App.Vector(0, 0, 1), 1.2), math.radians(0), math.radians(180)), False)
sketch8.addConstraint(Sketcher.Constraint("Tangent", 1, 2, 2, 2))
sketch8.addConstraint(Sketcher.Constraint("Tangent", 2, 1, 3, 1))
sketch8.addConstraint(Sketcher.Constraint("Tangent", 3, 2, 4, 2))
sketch8.addConstraint(Sketcher.Constraint("Tangent", 4, 1, 1, 1))
sketch8.addConstraint(Sketcher.Constraint("Tangent", 5, 2, 6, 2))
sketch8.addConstraint(Sketcher.Constraint("Tangent", 6, 1, 7, 1))
sketch8.addConstraint(Sketcher.Constraint("Tangent", 7, 2, 8, 2))
sketch8.addConstraint(Sketcher.Constraint("Tangent", 8, 1, 5, 1))
sketch8.addConstraint(Sketcher.Constraint("Vertical", 1))
sketch8.addConstraint(Sketcher.Constraint("Vertical", 3))
sketch8.addConstraint(Sketcher.Constraint("Vertical", 5))
sketch8.addConstraint(Sketcher.Constraint("Vertical", 7))
sketch8.addConstraint(Sketcher.Constraint("Equal", 0, 2))
sketch8.addConstraint(Sketcher.Constraint("Equal", 4, 6))
sketch8.addConstraint(Sketcher.Constraint("Vertical", 0, 3, 2, 3))
sketch8.addConstraint(Sketcher.Constraint("Vertical", 4, 3, 6, 3))
sketch8.addConstraint(Sketcher.Constraint("Equal", 3, 5))
sketch8.addConstraint(Sketcher.Constraint("Diameter", 0, Q("2.4 mm")))
sketch8.addConstraint(Sketcher.Constraint("DistanceY", 1, 1, 1, 2, Q("15 mm")))
sketch8.addConstraint(Sketcher.Constraint("DistanceX", -1, 1, 0, 3, Q("37 mm")))
sketch8.addConstraint(Sketcher.Constraint("DistanceY", -1, 1, 0, 3, Q("2 mm")))
sketch8.addConstraint(Sketcher.Constraint("DistanceY", 2, 3, -1, 1, Q("13 mm")))
sketch8.addConstraint(Sketcher.Constraint("DistanceY", -1, 1, 6, 3, Q("17 mm")))
pocket5 = body.newObject("PartDesign::Pocket", "Pocket004")
pocket5.Profile = sketch8
pocket5.Length = 20
pocket5.Reversed = True
doc.recompute()

fillet2 = body.newObject("PartDesign::Fillet", "Fillet001")
fillet2.Base = (pocket5, edges_at(pocket5, [(60, 1.5, 73.1), (60, 1.5, -73.1)]))
fillet2.Radius = 10

# Sketch on XZ plane
sketch9 = body.newObject("Sketcher::SketchObject", "Sketch008")
sketch9.AttachmentSupport = (doc.getObject("XZ_Plane"), [""])
sketch9.MapMode = "FlatFace"
sketch9.AttachmentOffset = App.Placement(App.Vector(0, 0, -3), App.Rotation())
sketch9.addGeometry(Part.Circle(App.Vector(26, 27, 0), App.Vector(0, 0, 1), 1.7), False)
sketch9.addGeometry(Part.Circle(App.Vector(26, -23, 0), App.Vector(0, 0, 1), 1.7), False)
sketch9.addGeometry(Part.Circle(App.Vector(26, 0, 0), App.Vector(0, 0, 1), 1.7), False)
sketch9.addConstraint(Sketcher.Constraint("Equal", 0, 1))
sketch9.addConstraint(Sketcher.Constraint("Equal", 1, 2))
sketch9.addConstraint(Sketcher.Constraint("PointOnObject", 2, 3, -1))
sketch9.addConstraint(Sketcher.Constraint("Vertical", 0, 3, 1, 3))
sketch9.addConstraint(Sketcher.Constraint("Vertical", 1, 3, 2, 3))
sketch9.addConstraint(Sketcher.Constraint("Diameter", 0, Q("3.4 mm")))
sketch9.addConstraint(Sketcher.Constraint("DistanceX", -1, 1, 0, 3, Q("26 mm")))
sketch9.addConstraint(Sketcher.Constraint("DistanceY", -1, 1, 0, 3, Q("27 mm")))
sketch9.addConstraint(Sketcher.Constraint("DistanceY", 1, 3, -1, 1, Q("23 mm")))
pocket6 = body.newObject("PartDesign::Pocket", "Pocket005")
pocket6.Profile = sketch9
pocket6.Length = 3
pocket6.Reversed = True

doc.recompute()
